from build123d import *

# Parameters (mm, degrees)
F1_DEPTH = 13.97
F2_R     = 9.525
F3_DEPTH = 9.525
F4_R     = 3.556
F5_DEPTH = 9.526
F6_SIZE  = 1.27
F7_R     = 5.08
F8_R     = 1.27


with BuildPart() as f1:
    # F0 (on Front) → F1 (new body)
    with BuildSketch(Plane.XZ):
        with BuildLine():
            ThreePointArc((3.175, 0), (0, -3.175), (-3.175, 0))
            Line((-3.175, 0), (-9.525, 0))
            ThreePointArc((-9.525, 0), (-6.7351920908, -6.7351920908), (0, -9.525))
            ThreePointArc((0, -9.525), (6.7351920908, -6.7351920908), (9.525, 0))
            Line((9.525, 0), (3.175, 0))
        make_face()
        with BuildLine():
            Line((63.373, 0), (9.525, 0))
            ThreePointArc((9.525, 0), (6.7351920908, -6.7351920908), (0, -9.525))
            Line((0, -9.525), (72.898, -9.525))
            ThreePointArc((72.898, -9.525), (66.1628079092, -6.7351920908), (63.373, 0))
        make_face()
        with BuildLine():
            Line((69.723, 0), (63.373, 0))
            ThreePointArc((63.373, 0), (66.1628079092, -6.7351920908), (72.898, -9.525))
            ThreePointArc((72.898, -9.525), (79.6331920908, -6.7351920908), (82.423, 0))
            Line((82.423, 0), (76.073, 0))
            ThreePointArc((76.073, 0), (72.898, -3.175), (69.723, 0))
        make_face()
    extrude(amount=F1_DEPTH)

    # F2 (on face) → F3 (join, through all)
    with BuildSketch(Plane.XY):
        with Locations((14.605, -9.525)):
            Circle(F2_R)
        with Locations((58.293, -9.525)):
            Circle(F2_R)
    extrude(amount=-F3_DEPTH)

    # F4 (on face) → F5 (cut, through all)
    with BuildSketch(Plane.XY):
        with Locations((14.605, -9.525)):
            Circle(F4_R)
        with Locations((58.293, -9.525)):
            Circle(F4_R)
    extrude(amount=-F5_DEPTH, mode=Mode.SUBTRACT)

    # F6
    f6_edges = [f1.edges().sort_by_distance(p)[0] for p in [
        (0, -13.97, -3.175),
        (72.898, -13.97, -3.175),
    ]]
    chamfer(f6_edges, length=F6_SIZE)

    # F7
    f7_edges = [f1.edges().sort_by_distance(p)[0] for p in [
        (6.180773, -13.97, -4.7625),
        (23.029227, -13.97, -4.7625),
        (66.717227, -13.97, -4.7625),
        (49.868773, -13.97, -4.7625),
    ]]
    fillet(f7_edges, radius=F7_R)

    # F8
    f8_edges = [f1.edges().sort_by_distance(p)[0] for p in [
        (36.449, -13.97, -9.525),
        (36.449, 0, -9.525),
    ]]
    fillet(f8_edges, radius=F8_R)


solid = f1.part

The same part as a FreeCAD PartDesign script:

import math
import FreeCAD as App
import Part
import Sketcher
Q = App.Units.Quantity


def edges_at(feature, points):
    """Names of the edges that pass closest to the given points."""
    edges = feature.Shape.Edges
    near = lambda p: min(range(len(edges)), key=lambda i: edges[i].distToShape(Part.Vertex(*p))[0])
    return sorted({f"Edge{near(p) + 1}" for p in points})

doc = App.newDocument("Part")
body = doc.addObject("PartDesign::Body", "Body")

# Sketch on XZ plane
sketch1 = body.newObject("Sketcher::SketchObject", "Sketch")
sketch1.AttachmentSupport = (doc.getObject("XZ_Plane"), [""])
sketch1.MapMode = "FlatFace"
sketch1.addGeometry([
    Part.ArcOfCircle(Part.Circle(App.Vector(0, 0, 0), App.Vector(0, 0, 1), 3.175), math.radians(180), math.radians(360)),  # 0
    Part.LineSegment(App.Vector(-3.175, 0, 0), App.Vector(-9.525, 0, 0)),  # 1
    Part.ArcOfCircle(Part.Circle(App.Vector(0, 0, 0), App.Vector(0, 0, 1), 9.525), math.radians(180), math.radians(270)),  # 2
    Part.LineSegment(App.Vector(0, -9.525, 0), App.Vector(72.898, -9.525, 0)),  # 3
    Part.ArcOfCircle(Part.Circle(App.Vector(72.898, 0, 0), App.Vector(0, 0, 1), 9.525), math.radians(-90), math.radians(0)),  # 4
    Part.LineSegment(App.Vector(82.423, 0, 0), App.Vector(76.073, 0, 0)),  # 5
    Part.ArcOfCircle(Part.Circle(App.Vector(72.898, 0, 0), App.Vector(0, 0, 1), 3.175), math.radians(180), math.radians(360)),  # 6
    Part.LineSegment(App.Vector(69.723, 0, 0), App.Vector(3.175, 0, 0)),  # 7
], False)
sketch1.addConstraint([
    Sketcher.Constraint("Coincident", 0, 1, 1, 1),
    Sketcher.Constraint("Coincident", 1, 2, 2, 1),
    Sketcher.Constraint("Tangent", 2, 2, 3, 1),
    Sketcher.Constraint("Tangent", 3, 2, 4, 1),
    Sketcher.Constraint("Coincident", 4, 2, 5, 1),
    Sketcher.Constraint("Coincident", 5, 2, 6, 2),
    Sketcher.Constraint("Coincident", 6, 1, 7, 1),
    Sketcher.Constraint("Coincident", 7, 2, 0, 2),
    Sketcher.Constraint("Horizontal", 1),
    Sketcher.Constraint("Horizontal", 3),
    Sketcher.Constraint("Horizontal", 5),
    Sketcher.Constraint("Horizontal", 7),
    Sketcher.Constraint("Coincident", 0, 3, -1, 1),
    Sketcher.Constraint("Coincident", 2, 3, -1, 1),
    Sketcher.Constraint("Coincident", 6, 3, 4, 3),
    Sketcher.Constraint("Equal", 2, 4),
    Sketcher.Constraint("Equal", 0, 6),
    Sketcher.Constraint("PointOnObject", 0, 1, -1),
    Sketcher.Constraint("PointOnObject", 4, 2, -1),
    Sketcher.Constraint("PointOnObject", 6, 1, -1),
    Sketcher.Constraint("Radius", 0, Q("0.125 in")),
    Sketcher.Constraint("Radius", 2, Q("0.375 in")),
    Sketcher.Constraint("DistanceX", 3, 1, 3, 2, Q("2.87 in")),
])
pad1 = body.newObject("PartDesign::Pad", "Pad")
pad1.Profile = sketch1
pad1.Length = Q("0.55 in")

# Sketch on XY plane
sketch2 = body.newObject("Sketcher::SketchObject", "Sketch001")
sketch2.AttachmentSupport = (doc.getObject("XY_Plane"), [""])
sketch2.MapMode = "FlatFace"
sketch2.addGeometry([
    Part.Circle(App.Vector(14.605, -9.525, 0), App.Vector(0, 0, 1), 9.525),
    Part.Circle(App.Vector(58.293, -9.525, 0), App.Vector(0, 0, 1), 9.525),
], False)
sketch2.addConstraint([
    Sketcher.Constraint("Equal", 0, 1),
    Sketcher.Constraint("Horizontal", 0, 3, 1, 3),
    Sketcher.Constraint("Diameter", 0, Q("0.75 in")),
    Sketcher.Constraint("DistanceX", 0, 3, 1, 3, Q("1.72 in")),
    Sketcher.Constraint("DistanceX", -1, 1, 0, 3, Q("0.575 in")),
    Sketcher.Constraint("DistanceY", 0, 3, -1, 1, Q("0.375 in")),
])
pad2 = body.newObject("PartDesign::Pad", "Pad001")
pad2.Profile = sketch2
pad2.Type = "UpToLast"
pad2.Reversed = True

# Sketch on XY plane
sketch3 = body.newObject("Sketcher::SketchObject", "Sketch002")
sketch3.AttachmentSupport = (doc.getObject("XY_Plane"), [""])
sketch3.MapMode = "FlatFace"
sketch3.addGeometry([
    Part.Circle(App.Vector(14.605, -9.525, 0), App.Vector(0, 0, 1), 3.556),
    Part.Circle(App.Vector(58.293, -9.525, 0), App.Vector(0, 0, 1), 3.556),
], False)
sketch3.addConstraint([
    Sketcher.Constraint("Equal", 0, 1),
    Sketcher.Constraint("Horizontal", 0, 3, 1, 3),
    Sketcher.Constraint("Diameter", 0, Q("0.28 in")),
    Sketcher.Constraint("DistanceX", 0, 3, 1, 3, Q("1.72 in")),
    Sketcher.Constraint("DistanceX", -1, 1, 0, 3, Q("0.575 in")),
    Sketcher.Constraint("DistanceY", 0, 3, -1, 1, Q("0.375 in")),
])
pocket1 = body.newObject("PartDesign::Pocket", "Pocket")
pocket1.Profile = sketch3
pocket1.Type = "ThroughAll"
doc.recompute()

chamfer = body.newObject("PartDesign::Chamfer", "Chamfer")
chamfer.Base = (pocket1, edges_at(pocket1, [(0, -13.97, -3.175), (72.898, -13.97, -3.175)]))
chamfer.Size = Q("0.05 in")
doc.recompute()

fillet = body.newObject("PartDesign::Fillet", "Fillet")
fillet.Base = (chamfer, edges_at(chamfer, [
    (6.181, -13.97, -4.763),
    (23.029, -13.97, -4.763),
    (66.717, -13.97, -4.763),
    (49.869, -13.97, -4.763),
]))
fillet.Radius = Q("0.2 in")
doc.recompute()

fillet2 = body.newObject("PartDesign::Fillet", "Fillet001")
fillet2.Base = (fillet, edges_at(fillet, [(36.449, -13.97, -9.525), (36.449, 0, -9.525)]))
fillet2.Radius = Q("0.05 in")

doc.recompute()
